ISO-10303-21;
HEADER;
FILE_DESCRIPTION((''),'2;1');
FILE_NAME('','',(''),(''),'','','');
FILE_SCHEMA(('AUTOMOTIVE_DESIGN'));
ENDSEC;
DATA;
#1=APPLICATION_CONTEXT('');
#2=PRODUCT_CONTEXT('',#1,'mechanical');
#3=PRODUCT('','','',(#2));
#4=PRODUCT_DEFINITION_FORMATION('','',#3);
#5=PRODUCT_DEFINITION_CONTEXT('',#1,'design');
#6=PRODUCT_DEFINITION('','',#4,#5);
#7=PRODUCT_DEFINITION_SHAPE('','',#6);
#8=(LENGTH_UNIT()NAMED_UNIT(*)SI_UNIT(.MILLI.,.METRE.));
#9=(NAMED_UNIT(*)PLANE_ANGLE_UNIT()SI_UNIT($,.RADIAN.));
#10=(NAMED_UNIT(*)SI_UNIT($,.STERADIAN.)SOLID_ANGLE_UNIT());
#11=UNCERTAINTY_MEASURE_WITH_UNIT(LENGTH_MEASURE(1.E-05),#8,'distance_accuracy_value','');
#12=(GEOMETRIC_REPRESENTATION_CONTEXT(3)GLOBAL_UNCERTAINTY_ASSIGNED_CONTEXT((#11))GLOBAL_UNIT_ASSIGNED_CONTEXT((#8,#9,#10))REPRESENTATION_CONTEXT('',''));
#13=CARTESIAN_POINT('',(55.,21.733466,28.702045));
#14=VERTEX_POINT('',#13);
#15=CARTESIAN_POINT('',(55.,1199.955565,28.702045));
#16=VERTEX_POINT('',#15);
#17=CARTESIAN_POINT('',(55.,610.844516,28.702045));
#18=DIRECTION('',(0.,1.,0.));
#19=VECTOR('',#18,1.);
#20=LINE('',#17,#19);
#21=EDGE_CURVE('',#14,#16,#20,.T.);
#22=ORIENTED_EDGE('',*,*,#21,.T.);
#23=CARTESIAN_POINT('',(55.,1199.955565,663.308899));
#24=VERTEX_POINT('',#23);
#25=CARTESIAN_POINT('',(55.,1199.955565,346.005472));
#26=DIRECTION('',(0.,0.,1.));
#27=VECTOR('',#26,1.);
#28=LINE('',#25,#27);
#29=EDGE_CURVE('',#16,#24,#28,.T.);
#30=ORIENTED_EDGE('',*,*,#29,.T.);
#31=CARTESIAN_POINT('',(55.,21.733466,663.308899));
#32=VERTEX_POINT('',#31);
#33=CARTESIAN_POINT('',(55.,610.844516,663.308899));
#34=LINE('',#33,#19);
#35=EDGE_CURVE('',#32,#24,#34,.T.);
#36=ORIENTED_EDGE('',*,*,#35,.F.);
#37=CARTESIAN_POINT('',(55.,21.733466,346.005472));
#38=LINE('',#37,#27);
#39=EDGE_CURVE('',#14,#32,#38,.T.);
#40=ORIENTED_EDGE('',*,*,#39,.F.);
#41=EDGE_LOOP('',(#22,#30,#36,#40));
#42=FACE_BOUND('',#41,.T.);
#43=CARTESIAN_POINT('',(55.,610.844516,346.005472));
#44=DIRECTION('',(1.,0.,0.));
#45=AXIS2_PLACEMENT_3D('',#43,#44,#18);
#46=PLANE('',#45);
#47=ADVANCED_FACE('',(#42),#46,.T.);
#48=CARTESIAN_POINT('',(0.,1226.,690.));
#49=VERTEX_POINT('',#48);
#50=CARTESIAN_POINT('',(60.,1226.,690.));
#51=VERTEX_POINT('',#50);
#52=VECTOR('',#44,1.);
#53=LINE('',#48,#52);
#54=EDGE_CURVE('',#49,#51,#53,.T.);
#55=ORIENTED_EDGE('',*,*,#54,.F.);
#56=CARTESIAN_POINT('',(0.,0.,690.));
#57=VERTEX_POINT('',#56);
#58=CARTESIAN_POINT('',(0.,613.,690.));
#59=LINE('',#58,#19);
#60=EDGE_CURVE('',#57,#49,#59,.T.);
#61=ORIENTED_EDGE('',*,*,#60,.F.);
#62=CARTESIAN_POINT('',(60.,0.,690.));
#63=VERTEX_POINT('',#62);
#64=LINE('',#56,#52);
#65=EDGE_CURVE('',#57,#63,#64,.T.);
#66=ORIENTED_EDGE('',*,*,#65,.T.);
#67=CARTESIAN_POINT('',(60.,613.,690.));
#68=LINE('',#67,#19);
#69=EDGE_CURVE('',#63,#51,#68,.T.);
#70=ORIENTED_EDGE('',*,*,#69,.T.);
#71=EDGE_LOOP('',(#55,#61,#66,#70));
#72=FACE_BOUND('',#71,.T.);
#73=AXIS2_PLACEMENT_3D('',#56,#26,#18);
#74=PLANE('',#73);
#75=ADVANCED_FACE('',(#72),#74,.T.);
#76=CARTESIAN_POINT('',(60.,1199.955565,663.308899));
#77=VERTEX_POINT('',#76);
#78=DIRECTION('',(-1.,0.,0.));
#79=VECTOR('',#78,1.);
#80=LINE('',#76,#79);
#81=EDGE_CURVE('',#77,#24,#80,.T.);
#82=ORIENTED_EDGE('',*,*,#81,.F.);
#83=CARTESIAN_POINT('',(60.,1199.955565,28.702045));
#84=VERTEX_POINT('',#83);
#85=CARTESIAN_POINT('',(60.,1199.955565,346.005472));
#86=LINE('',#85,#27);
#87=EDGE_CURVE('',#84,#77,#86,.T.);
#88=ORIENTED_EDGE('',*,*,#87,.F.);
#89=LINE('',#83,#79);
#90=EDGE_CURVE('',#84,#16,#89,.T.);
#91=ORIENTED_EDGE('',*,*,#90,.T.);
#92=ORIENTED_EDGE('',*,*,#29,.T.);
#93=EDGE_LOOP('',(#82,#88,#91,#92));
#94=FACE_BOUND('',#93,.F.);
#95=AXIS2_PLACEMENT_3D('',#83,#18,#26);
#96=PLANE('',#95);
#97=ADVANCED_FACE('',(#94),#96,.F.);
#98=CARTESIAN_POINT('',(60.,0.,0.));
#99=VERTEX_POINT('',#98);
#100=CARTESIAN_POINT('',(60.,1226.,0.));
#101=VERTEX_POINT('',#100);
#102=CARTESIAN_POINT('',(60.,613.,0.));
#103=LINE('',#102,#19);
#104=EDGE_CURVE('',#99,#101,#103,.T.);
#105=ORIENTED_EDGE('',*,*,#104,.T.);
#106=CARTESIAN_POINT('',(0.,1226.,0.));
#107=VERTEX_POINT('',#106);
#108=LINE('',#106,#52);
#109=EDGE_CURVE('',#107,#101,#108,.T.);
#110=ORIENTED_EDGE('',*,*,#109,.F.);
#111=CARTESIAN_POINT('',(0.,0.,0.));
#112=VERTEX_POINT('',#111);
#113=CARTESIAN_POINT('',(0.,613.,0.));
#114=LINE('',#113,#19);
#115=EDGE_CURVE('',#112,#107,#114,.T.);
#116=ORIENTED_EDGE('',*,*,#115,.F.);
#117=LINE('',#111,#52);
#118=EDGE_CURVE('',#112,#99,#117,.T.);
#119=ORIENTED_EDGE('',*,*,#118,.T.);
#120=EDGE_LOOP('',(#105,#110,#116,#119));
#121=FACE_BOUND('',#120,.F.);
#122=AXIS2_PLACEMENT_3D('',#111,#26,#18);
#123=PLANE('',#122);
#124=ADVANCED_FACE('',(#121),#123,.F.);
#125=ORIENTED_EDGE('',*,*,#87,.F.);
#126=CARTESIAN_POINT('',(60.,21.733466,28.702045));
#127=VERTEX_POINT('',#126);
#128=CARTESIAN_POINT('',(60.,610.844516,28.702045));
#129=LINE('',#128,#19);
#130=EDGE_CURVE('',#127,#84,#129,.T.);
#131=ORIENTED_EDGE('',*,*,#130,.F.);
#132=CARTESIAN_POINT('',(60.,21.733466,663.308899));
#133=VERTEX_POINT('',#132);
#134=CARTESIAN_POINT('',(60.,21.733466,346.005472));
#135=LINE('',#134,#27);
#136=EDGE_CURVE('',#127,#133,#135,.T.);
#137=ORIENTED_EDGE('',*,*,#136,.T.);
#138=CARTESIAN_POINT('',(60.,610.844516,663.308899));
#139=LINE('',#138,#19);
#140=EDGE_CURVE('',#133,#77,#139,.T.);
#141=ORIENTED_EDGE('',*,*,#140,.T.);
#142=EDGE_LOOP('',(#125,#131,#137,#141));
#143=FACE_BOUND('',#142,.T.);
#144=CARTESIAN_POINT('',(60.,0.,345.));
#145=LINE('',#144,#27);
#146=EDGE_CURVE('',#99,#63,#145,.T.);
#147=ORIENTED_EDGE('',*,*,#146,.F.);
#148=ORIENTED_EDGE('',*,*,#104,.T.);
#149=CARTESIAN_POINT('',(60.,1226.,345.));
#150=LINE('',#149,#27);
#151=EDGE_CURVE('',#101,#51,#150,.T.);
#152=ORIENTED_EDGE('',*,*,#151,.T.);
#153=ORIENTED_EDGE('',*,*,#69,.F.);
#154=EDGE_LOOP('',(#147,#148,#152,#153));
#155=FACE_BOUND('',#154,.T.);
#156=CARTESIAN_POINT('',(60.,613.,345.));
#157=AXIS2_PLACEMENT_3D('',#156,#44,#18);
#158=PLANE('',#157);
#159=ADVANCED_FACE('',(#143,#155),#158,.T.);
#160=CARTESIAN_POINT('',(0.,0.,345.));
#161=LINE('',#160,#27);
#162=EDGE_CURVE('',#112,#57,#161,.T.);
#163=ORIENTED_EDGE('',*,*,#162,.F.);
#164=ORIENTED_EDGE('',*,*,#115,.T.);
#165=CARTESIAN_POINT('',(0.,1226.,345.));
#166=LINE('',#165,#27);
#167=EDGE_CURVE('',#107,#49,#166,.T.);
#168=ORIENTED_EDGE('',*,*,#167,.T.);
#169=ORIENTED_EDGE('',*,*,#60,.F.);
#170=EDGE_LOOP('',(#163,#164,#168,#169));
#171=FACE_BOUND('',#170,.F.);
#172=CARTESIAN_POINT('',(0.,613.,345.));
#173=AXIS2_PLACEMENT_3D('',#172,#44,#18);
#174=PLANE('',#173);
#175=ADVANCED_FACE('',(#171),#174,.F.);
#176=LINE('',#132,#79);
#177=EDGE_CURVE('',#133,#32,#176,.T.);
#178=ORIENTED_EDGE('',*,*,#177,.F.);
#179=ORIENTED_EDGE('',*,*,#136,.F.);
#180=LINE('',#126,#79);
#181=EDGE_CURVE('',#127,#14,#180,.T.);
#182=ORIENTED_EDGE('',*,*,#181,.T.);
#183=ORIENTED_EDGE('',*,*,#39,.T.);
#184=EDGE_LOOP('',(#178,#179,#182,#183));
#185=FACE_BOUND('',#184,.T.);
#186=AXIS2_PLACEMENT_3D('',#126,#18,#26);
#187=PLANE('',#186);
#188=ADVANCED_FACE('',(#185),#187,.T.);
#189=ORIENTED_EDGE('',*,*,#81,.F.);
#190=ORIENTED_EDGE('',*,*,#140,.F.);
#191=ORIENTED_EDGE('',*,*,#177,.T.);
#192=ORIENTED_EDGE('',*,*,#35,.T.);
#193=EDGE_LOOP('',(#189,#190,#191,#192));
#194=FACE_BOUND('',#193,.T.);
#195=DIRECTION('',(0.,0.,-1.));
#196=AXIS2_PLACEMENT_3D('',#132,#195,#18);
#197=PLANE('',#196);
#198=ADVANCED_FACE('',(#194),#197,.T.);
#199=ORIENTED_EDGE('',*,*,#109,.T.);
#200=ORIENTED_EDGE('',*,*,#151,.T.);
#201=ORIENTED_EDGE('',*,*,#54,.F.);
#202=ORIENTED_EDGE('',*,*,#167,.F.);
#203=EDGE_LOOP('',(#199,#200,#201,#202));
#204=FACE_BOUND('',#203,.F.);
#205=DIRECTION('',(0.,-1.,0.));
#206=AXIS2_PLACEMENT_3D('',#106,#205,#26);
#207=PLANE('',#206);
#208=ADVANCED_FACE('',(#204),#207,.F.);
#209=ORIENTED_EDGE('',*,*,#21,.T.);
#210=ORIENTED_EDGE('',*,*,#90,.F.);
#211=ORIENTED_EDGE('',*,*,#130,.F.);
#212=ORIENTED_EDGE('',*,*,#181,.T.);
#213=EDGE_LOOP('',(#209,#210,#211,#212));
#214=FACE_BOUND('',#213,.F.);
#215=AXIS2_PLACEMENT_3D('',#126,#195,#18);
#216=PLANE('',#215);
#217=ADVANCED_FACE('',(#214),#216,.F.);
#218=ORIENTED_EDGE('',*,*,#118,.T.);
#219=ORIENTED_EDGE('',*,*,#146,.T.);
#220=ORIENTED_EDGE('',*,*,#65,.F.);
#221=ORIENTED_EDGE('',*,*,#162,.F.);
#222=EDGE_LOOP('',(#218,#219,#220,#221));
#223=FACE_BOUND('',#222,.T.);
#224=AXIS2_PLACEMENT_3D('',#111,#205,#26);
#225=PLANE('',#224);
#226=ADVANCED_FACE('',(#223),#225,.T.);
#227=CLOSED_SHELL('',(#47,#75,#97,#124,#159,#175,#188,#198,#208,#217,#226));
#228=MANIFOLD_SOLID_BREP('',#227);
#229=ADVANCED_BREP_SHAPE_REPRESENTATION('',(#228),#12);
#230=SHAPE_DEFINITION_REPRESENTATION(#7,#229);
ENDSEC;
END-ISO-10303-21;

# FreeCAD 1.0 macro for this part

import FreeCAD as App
import Part
import Sketcher

V = App.Vector
Q = App.Units.Quantity


def add_polygon(sketch, points):
    """Adds a closed chain of lines whose ends are joined by coincident constraints."""
    first, n = sketch.GeometryCount, len(points)
    for a, b in zip(points, points[1:] + points[:1]):
        sketch.addGeometry(Part.LineSegment(App.Vector(*a, 0), App.Vector(*b, 0)), False)
    for i in range(n):
        sketch.addConstraint(Sketcher.Constraint("Coincident", first + i, 2, first + (i + 1) % n, 1))

doc = App.newDocument("Part")
body = doc.addObject("PartDesign::Body", "Body")

# Sketch on YZ plane
sketch1 = body.newObject("Sketcher::SketchObject", "Sketch")
sketch1.AttachmentSupport = (doc.getObject("YZ_Plane"), [""])
sketch1.MapMode = "FlatFace"
add_polygon(sketch1, [(0, 690), (0, 0), (1226, 0), (1226, 690)])  # lines 0-3
sketch1.addConstraint([
    Sketcher.Constraint("Vertical", 0),
    Sketcher.Constraint("Horizontal", 1),
    Sketcher.Constraint("Vertical", 2),
    Sketcher.Constraint("Horizontal", 3),
    Sketcher.Constraint("Coincident", 0, 2, -1, 1),
    Sketcher.Constraint("DistanceX", 1, 1, 1, 2, Q("1226 mm")),
    Sketcher.Constraint("DistanceY", 0, 2, 0, 1, Q("690 mm")),
])
pad1 = body.newObject("PartDesign::Pad", "Pad")
pad1.Profile = sketch1
pad1.Length = 60

# Sketch on YZ plane
sketch2 = body.newObject("Sketcher::SketchObject", "Sketch001")
sketch2.AttachmentSupport = (doc.getObject("YZ_Plane"), [""])
sketch2.MapMode = "FlatFace"
sketch2.AttachmentOffset = App.Placement(V(0, 0, 60), App.Rotation())
add_polygon(sketch2, [(21.733466, 663.308899), (21.733466, 28.702045), (1199.955565, 28.702045), (1199.955565, 663.308899)])  # lines 0-3
sketch2.addConstraint([
    Sketcher.Constraint("Vertical", 0),
    Sketcher.Constraint("Horizontal", 1),
    Sketcher.Constraint("Vertical", 2),
    Sketcher.Constraint("Horizontal", 3),
    Sketcher.Constraint("DistanceX", 1, 1, 1, 2, Q("1178.222099 mm")),
    Sketcher.Constraint("DistanceY", -1, 1, 2, 2, Q("663.308899 mm")),
    Sketcher.Constraint("DistanceY", 0, 2, 0, 1, Q("634.606854 mm")),
    Sketcher.Constraint("DistanceX", -1, 1, 0, 2, Q("21.733466 mm")),
])
pocket1 = body.newObject("PartDesign::Pocket", "Pocket")
pocket1.Profile = sketch2
pocket1.Length = 5

doc.recompute()
